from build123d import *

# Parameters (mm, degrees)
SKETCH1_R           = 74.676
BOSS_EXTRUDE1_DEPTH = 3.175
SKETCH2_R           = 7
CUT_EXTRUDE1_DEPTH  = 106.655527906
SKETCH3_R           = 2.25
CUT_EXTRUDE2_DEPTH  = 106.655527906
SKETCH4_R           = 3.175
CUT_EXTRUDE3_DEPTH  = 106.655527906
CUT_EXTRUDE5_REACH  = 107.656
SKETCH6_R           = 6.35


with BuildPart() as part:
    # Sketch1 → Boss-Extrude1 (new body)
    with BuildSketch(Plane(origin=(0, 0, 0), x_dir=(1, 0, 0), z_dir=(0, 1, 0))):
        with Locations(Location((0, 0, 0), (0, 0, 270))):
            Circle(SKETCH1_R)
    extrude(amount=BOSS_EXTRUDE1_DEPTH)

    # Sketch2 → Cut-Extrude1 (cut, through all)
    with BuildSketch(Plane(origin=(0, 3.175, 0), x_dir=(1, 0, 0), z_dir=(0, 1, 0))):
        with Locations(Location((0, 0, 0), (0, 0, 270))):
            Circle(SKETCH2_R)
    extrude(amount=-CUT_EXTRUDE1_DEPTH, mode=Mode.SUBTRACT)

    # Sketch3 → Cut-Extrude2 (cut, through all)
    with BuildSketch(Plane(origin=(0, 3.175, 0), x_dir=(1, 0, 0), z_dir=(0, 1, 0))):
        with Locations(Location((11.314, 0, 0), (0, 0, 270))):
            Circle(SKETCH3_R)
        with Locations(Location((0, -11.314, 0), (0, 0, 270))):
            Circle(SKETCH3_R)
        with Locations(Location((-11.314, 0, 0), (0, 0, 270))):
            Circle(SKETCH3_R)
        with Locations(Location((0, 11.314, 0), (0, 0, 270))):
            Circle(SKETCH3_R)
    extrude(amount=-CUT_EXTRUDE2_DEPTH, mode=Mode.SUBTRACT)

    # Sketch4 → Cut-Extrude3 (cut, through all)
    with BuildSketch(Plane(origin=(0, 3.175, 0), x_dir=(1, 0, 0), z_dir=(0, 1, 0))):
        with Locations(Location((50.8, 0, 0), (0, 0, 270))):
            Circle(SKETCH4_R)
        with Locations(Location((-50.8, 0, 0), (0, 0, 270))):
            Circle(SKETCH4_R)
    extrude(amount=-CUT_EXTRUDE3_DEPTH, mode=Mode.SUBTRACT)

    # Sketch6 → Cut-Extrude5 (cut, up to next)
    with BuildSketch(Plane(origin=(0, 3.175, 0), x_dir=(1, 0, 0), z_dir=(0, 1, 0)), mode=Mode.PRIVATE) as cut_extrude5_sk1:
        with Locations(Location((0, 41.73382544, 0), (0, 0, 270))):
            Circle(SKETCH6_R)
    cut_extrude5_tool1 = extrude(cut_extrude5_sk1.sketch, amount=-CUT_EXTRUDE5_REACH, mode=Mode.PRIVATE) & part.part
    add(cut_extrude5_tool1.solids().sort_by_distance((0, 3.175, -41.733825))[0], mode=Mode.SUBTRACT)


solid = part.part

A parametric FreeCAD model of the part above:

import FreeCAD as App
import Part
import Sketcher

V = App.Vector
Q = App.Units.Quantity

doc = App.newDocument("Part")
body = doc.addObject("PartDesign::Body", "Body")

sketch1 = body.newObject("Sketcher::SketchObject", "Sketch")
sketch1.AttachmentSupport = (doc.getObject("XZ_Plane"), [""])
sketch1.MapMode = "FlatFace"
sketch1.addGeometry(Part.Circle(V(0, 0, 0), V(0, 0, 1), 74.676), False)
sketch1.addConstraint([
    Sketcher.Constraint("Coincident", 0, 3, -1, 1),
    Sketcher.Constraint("Diameter", 0, Q("5.88 in")),
])
pad1 = body.newObject("PartDesign::Pad", "Pad")
pad1.Profile = sketch1
pad1.Length = Q("0.125 in")
pad1.Reversed = True

sketch2 = body.newObject("Sketcher::SketchObject", "Sketch001")
sketch2.AttachmentSupport = (doc.getObject("XZ_Plane"), [""])
sketch2.MapMode = "FlatFace"
sketch2.AttachmentOffset = App.Placement(V(0, 0, -0.125 * 25.4), App.Rotation())
sketch2.addGeometry(Part.Circle(V(0, 0, 0), V(0, 0, 1), 7), False)
sketch2.addConstraint([
    Sketcher.Constraint("Coincident", 0, 3, -1, 1),
    Sketcher.Constraint("Diameter", 0, Q("14 mm")),
])
pocket1 = body.newObject("PartDesign::Pocket", "Pocket")
pocket1.Profile = sketch2
pocket1.Type = "ThroughAll"
pocket1.Reversed = True

sketch3 = body.newObject("Sketcher::SketchObject", "Sketch002")
sketch3.AttachmentSupport = (doc.getObject("XZ_Plane"), [""])
sketch3.MapMode = "FlatFace"
sketch3.AttachmentOffset = App.Placement(V(0, 0, -0.125 * 25.4), App.Rotation())
sketch3.addGeometry([
    Part.Circle(V(11.314, 0, 0), V(0, 0, 1), 2.25),
    Part.Circle(V(0, 11.314, 0), V(0, 0, 1), 2.25),
    Part.Circle(V(-11.314, 0, 0), V(0, 0, 1), 2.25),
    Part.Circle(V(0, -11.314, 0), V(0, 0, 1), 2.25),
], False)
sketch3.addConstraint([
    Sketcher.Constraint("Equal", 0, 1),
    Sketcher.Constraint("Equal", 1, 2),
    Sketcher.Constraint("Equal", 2, 3),
    Sketcher.Constraint("Symmetric", 0, 3, 2, 3, -1, 1),
    Sketcher.Constraint("Symmetric", 1, 3, 3, 3, -1, 1),
    Sketcher.Constraint("PointOnObject", 0, 3, -1),
    Sketcher.Constraint("PointOnObject", 1, 3, -2),
    Sketcher.Constraint("Diameter", 0, Q("4.5 mm")),
    Sketcher.Constraint("DistanceX", -1, 1, 0, 3, Q("11.314 mm")),
    Sketcher.Constraint("DistanceY", -1, 1, 1, 3, Q("11.314 mm")),
])
pocket2 = body.newObject("PartDesign::Pocket", "Pocket001")
pocket2.Profile = sketch3
pocket2.Type = "ThroughAll"
pocket2.Reversed = True

sketch4 = body.newObject("Sketcher::SketchObject", "Sketch003")
sketch4.AttachmentSupport = (doc.getObject("XZ_Plane"), [""])
sketch4.MapMode = "FlatFace"
sketch4.AttachmentOffset = App.Placement(V(0, 0, -0.125 * 25.4), App.Rotation())
sketch4.addGeometry([
    Part.Circle(V(50.8, 0, 0), V(0, 0, 1), 3.175),
    Part.Circle(V(-50.8, 0, 0), V(0, 0, 1), 3.175),
], False)
sketch4.addConstraint([
    Sketcher.Constraint("Equal", 0, 1),
    Sketcher.Constraint("Symmetric", 0, 3, 1, 3, -1, 1),
    Sketcher.Constraint("PointOnObject", 0, 3, -1),
    Sketcher.Constraint("Diameter", 0, Q("0.25 in")),
    Sketcher.Constraint("DistanceX", -1, 1, 0, 3, Q("2 in")),
])
pocket3 = body.newObject("PartDesign::Pocket", "Pocket002")
pocket3.Profile = sketch4
pocket3.Type = "ThroughAll"
pocket3.Reversed = True

sketch5 = body.newObject("Sketcher::SketchObject", "Sketch004")
sketch5.AttachmentSupport = (doc.getObject("XZ_Plane"), [""])
sketch5.MapMode = "FlatFace"
sketch5.AttachmentOffset = App.Placement(V(0, 0, -0.125 * 25.4), App.Rotation())
sketch5.addGeometry(Part.Circle(V(0, -41.733825, 0), V(0, 0, 1), 6.35), False)
sketch5.addConstraint([
    Sketcher.Constraint("PointOnObject", 0, 3, -2),
    Sketcher.Constraint("Diameter", 0, Q("0.5 in")),
    Sketcher.Constraint("DistanceY", 0, 3, -1, 1, Q("41.733825 mm")),
])
pocket4 = body.newObject("PartDesign::Pocket", "Pocket003")
pocket4.Profile = sketch5
pocket4.Type = "UpToFirst"
pocket4.Reversed = True

doc.recompute()
